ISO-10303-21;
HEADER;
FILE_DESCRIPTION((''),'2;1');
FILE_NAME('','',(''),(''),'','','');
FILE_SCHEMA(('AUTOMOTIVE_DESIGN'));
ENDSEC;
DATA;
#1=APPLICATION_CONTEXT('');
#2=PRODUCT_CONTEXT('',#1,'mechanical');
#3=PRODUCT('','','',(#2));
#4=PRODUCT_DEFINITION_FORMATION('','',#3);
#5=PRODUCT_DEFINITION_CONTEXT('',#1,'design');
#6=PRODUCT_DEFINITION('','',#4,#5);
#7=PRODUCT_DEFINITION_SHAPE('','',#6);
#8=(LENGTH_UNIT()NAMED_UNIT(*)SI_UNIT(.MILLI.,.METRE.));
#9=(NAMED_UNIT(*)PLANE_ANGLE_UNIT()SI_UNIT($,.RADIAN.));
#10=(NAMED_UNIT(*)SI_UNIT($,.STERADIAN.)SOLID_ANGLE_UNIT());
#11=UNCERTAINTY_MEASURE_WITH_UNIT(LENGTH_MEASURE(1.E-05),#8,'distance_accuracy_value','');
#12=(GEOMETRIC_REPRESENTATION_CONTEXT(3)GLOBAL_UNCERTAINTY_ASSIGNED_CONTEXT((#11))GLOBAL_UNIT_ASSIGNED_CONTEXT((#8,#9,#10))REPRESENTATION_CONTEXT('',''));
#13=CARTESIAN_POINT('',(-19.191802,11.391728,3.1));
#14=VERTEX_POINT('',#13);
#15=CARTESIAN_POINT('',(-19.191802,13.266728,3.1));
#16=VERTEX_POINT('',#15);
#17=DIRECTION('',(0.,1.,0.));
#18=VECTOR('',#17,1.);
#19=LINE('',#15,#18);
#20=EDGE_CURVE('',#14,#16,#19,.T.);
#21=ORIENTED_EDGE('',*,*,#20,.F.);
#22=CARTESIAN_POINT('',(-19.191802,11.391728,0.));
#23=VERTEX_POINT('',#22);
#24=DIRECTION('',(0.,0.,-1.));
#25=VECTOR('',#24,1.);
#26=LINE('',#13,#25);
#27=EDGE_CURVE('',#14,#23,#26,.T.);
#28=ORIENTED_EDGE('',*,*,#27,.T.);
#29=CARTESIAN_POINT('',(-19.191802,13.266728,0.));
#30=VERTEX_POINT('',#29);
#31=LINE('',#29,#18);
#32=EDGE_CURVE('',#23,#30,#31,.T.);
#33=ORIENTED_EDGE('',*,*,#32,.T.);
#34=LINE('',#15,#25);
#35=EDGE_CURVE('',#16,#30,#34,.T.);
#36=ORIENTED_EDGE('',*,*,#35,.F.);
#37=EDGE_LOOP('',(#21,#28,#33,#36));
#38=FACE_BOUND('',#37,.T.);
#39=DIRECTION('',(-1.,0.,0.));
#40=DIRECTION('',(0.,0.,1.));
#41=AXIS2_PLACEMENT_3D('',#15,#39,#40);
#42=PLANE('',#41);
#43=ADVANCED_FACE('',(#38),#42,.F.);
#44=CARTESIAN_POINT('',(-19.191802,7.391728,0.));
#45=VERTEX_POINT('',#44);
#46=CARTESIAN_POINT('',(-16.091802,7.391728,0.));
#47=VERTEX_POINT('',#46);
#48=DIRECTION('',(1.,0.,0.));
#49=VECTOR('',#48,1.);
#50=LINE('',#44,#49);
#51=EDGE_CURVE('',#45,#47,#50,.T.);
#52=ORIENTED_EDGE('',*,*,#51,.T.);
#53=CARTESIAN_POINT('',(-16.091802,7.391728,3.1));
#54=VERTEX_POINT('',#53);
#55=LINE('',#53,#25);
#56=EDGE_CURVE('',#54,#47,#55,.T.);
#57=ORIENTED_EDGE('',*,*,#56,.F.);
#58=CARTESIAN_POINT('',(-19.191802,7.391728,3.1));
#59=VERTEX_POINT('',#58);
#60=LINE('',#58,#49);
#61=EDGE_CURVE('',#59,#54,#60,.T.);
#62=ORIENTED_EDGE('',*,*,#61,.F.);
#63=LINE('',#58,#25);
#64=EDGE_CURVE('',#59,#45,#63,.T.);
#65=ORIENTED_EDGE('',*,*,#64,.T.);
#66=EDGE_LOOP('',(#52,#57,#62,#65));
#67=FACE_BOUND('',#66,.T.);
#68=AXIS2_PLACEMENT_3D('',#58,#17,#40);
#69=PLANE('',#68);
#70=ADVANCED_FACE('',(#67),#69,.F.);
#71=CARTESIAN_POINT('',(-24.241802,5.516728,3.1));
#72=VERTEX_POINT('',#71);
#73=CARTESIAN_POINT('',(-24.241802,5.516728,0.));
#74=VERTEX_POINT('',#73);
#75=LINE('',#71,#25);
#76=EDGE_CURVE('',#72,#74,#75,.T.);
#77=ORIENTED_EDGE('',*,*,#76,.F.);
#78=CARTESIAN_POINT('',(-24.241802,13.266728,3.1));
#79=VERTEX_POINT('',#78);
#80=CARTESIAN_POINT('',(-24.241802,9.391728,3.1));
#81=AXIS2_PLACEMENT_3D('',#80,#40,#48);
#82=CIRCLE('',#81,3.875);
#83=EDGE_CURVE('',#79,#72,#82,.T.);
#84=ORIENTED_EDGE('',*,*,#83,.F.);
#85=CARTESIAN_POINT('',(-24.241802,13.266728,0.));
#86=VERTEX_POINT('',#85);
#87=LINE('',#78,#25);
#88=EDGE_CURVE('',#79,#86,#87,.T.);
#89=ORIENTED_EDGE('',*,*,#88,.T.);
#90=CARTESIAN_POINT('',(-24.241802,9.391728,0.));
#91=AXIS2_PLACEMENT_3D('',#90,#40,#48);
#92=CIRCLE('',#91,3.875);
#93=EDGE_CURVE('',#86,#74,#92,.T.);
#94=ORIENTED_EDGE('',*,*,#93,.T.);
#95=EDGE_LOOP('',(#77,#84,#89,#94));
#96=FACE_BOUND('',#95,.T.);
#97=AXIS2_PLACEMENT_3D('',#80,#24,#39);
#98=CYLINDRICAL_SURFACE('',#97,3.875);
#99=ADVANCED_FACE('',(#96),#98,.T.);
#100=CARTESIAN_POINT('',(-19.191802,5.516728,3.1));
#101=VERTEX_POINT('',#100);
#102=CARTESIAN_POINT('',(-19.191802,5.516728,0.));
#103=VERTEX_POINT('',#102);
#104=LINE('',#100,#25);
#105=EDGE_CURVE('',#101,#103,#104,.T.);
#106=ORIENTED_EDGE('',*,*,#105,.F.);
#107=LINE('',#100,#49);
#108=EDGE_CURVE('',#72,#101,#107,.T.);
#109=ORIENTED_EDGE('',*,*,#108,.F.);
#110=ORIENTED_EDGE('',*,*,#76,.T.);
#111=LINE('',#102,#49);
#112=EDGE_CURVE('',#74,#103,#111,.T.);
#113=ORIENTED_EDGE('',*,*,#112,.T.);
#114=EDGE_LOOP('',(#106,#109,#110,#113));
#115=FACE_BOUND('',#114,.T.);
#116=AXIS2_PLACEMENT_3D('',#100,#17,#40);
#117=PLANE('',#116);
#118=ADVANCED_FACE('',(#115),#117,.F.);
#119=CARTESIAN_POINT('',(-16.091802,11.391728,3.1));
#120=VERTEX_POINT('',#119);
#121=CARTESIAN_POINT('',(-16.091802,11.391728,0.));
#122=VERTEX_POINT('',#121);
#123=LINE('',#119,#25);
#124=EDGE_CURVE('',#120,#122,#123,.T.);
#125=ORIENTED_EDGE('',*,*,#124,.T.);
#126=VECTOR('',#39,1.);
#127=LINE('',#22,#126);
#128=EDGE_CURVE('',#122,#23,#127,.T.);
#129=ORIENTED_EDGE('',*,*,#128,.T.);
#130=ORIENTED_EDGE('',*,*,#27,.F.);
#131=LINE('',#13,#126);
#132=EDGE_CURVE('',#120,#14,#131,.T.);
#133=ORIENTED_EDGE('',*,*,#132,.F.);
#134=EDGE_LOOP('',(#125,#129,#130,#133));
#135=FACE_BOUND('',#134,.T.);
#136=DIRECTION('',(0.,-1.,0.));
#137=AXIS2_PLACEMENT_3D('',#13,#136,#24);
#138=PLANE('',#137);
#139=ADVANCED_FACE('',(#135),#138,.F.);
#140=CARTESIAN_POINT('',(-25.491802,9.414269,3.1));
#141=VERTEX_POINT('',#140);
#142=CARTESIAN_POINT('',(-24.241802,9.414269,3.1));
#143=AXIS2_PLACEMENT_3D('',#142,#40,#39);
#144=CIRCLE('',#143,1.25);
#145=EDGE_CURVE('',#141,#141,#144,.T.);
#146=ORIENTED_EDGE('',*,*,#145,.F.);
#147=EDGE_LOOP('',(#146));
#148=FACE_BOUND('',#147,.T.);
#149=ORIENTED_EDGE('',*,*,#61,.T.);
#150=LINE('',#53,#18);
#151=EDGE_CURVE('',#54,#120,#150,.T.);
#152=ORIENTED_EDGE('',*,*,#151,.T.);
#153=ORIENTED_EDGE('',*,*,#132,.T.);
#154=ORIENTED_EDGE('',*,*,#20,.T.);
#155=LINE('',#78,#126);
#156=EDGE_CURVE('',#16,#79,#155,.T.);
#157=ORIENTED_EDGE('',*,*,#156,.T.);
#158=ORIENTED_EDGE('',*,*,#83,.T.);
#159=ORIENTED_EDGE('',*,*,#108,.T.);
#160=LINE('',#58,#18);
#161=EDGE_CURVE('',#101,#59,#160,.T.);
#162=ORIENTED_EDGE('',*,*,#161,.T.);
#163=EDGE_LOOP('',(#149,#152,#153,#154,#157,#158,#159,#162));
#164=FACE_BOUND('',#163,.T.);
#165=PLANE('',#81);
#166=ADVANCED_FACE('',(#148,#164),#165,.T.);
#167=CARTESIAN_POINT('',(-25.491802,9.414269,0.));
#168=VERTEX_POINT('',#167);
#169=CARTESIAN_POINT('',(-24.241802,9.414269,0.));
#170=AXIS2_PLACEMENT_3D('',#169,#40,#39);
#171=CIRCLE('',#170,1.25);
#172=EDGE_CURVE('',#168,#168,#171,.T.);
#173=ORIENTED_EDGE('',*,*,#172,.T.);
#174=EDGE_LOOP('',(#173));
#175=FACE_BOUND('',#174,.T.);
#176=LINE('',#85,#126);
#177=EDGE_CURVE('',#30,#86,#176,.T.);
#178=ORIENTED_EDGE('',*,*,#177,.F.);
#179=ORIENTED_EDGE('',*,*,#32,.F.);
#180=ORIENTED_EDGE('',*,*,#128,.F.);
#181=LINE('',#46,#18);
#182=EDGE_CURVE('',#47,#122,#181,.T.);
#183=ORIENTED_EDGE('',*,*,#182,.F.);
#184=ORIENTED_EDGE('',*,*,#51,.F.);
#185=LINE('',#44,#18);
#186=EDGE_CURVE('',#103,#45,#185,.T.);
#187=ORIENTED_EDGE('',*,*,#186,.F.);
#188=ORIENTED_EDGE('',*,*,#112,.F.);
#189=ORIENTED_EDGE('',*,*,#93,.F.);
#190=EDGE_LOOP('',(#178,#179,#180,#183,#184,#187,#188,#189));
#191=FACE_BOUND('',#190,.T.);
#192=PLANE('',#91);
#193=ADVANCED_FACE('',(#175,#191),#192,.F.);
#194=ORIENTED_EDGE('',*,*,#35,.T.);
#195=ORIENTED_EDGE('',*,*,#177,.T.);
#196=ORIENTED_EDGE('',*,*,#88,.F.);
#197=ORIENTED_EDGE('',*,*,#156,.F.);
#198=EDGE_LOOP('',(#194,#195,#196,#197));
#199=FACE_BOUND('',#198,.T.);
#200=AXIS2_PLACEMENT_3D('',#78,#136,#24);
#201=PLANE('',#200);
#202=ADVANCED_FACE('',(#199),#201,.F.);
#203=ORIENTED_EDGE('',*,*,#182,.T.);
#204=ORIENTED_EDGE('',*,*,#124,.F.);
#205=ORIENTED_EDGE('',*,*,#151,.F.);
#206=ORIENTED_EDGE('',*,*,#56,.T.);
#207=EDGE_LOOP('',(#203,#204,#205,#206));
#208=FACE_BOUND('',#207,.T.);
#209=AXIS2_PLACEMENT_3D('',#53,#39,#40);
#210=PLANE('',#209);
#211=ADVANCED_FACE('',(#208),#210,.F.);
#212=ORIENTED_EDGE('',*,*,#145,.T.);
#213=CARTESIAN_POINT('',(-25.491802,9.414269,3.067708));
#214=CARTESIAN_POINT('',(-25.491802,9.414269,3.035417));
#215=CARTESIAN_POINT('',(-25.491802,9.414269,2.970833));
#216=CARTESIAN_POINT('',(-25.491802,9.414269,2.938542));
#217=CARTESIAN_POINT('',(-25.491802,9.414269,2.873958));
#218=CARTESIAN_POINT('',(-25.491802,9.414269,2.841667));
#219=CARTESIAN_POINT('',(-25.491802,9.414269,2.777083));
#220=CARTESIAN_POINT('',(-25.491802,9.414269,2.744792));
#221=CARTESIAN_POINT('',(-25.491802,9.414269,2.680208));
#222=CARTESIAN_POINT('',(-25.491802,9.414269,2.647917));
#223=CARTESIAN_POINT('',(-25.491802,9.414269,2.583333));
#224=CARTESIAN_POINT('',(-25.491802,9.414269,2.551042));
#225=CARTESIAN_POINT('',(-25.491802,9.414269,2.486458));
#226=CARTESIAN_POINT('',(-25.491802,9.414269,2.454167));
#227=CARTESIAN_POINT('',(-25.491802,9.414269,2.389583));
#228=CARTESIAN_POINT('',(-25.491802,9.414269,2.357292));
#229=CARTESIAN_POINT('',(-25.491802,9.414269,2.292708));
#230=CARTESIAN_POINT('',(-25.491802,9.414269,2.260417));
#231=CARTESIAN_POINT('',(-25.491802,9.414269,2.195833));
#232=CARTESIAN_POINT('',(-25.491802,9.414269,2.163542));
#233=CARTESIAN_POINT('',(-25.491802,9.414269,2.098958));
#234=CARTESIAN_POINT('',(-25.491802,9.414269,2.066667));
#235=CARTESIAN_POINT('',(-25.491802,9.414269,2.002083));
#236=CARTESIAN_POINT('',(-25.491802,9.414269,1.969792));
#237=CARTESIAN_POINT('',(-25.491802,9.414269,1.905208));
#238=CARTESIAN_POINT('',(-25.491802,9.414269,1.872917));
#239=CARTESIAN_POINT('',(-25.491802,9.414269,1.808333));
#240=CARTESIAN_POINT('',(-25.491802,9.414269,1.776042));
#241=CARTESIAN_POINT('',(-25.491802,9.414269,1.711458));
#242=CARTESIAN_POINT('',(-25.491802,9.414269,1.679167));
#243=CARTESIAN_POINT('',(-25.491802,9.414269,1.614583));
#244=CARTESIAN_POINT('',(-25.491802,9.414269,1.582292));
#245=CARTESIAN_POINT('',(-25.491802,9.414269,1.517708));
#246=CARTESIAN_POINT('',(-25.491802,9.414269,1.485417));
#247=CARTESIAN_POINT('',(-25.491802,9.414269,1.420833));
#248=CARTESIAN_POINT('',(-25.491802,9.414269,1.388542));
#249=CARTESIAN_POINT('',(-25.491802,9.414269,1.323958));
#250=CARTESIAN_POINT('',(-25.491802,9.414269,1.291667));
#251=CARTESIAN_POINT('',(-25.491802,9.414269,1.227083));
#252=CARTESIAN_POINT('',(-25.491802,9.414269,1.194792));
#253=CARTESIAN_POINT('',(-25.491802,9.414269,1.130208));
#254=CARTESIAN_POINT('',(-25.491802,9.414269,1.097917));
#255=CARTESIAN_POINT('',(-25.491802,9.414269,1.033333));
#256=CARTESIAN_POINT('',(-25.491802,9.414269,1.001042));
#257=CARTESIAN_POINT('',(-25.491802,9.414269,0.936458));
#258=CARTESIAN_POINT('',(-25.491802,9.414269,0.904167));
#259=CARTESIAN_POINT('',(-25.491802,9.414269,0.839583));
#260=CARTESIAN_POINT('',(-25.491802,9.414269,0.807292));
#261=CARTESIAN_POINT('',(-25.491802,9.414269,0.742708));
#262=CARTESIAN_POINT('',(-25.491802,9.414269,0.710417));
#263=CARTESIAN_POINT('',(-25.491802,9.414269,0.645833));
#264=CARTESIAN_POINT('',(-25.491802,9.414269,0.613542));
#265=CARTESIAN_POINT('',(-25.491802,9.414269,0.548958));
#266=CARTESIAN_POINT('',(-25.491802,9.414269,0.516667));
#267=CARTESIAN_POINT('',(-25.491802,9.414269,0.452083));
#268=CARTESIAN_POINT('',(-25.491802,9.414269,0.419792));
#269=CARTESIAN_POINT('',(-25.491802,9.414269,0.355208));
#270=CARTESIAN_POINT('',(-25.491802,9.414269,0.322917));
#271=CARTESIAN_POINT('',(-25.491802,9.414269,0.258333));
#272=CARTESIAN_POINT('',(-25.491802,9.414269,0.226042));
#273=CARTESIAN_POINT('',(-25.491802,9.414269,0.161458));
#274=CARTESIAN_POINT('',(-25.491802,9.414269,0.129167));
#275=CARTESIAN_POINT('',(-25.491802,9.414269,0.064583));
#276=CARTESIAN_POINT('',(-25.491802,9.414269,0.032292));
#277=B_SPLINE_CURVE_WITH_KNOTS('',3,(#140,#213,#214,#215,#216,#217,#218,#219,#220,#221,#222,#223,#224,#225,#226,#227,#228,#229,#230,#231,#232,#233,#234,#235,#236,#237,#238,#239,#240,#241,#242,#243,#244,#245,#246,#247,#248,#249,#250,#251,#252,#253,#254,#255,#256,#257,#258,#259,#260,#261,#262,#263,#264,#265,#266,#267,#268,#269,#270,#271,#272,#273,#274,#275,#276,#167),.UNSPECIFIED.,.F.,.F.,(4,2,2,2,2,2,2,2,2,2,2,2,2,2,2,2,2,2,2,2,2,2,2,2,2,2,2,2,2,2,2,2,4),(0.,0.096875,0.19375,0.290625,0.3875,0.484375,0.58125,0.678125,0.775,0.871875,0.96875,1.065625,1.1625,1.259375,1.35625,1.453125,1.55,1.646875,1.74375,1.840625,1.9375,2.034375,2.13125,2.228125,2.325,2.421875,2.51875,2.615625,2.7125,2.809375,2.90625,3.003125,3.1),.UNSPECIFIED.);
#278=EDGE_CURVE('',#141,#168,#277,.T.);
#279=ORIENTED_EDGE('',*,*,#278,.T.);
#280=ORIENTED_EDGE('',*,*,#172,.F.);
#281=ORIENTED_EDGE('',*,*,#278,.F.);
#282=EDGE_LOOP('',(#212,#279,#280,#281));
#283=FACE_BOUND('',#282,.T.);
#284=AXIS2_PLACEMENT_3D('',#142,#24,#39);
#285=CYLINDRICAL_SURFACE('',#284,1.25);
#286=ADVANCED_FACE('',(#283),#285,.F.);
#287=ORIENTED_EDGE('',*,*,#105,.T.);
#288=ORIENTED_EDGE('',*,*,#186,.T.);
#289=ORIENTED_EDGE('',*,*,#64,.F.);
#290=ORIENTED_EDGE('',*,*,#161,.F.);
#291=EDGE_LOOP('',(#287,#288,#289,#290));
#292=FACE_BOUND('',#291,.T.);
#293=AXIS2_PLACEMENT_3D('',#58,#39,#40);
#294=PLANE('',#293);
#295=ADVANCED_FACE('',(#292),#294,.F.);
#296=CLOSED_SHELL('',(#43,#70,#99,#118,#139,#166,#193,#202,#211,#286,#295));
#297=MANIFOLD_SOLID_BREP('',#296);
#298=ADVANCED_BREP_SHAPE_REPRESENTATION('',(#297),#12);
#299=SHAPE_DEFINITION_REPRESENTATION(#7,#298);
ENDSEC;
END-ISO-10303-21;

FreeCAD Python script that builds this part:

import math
import FreeCAD as App
import Part
import Sketcher
from FreeCAD import Vector
Q = App.Units.Quantity

doc = App.newDocument("Part")
body = doc.addObject("PartDesign::Body", "Body")

sketch1 = doc.addObject("Sketcher::SketchObject", "Sketch")
body.addObject(sketch1)
sketch1.AttachmentSupport = (doc.XY_Plane, [""])
sketch1.MapMode = "FlatFace"
sketch1.addGeometry([
    Part.LineSegment(Vector(-19.191802, 11.391728, 0), Vector(-19.191802, 13.266728, 0)),
    Part.LineSegment(Vector(-19.191802, 13.266728, 0), Vector(-24.241802, 13.266728, 0)),
    Part.ArcOfCircle(Part.Circle(Vector(-24.241802, 9.391728, 0), Vector(0, 0, 1), 3.875), math.radians(90), math.radians(270)),
    Part.LineSegment(Vector(-24.241802, 5.516728, 0), Vector(-19.191802, 5.516728, 0)),
    Part.LineSegment(Vector(-19.191802, 5.516728, 0), Vector(-19.191802, 7.391728, 0)),
    Part.LineSegment(Vector(-19.191802, 7.391728, 0), Vector(-16.091802, 7.391728, 0)),
    Part.LineSegment(Vector(-16.091802, 7.391728, 0), Vector(-16.091802, 11.391728, 0)),
    Part.LineSegment(Vector(-16.091802, 11.391728, 0), Vector(-19.191802, 11.391728, 0)),
    Part.Circle(Vector(-24.241802, 9.414269, 0), Vector(0, 0, 1), 1.25),
], False)
sketch1.addConstraint([
    Sketcher.Constraint("Coincident", 0, 2, 1, 1),
    Sketcher.Constraint("Tangent", 1, 2, 2, 1),
    Sketcher.Constraint("Tangent", 2, 2, 3, 1),
    Sketcher.Constraint("Coincident", 3, 2, 4, 1),
    Sketcher.Constraint("Coincident", 4, 2, 5, 1),
    Sketcher.Constraint("Coincident", 5, 2, 6, 1),
    Sketcher.Constraint("Coincident", 6, 2, 7, 1),
    Sketcher.Constraint("Coincident", 7, 2, 0, 1),
    Sketcher.Constraint("Vertical", 0),
    Sketcher.Constraint("Horizontal", 1),
    Sketcher.Constraint("Horizontal", 3),
    Sketcher.Constraint("Vertical", 4),
    Sketcher.Constraint("Horizontal", 5),
    Sketcher.Constraint("Vertical", 6),
    Sketcher.Constraint("Horizontal", 7),
    Sketcher.Constraint("Vertical", 2, 3, 8, 3),
    Sketcher.Constraint("Vertical", 0, 2, 3, 2),
    Sketcher.Constraint("Equal", 0, 4),
    Sketcher.Constraint("Diameter", 8, Q("2.5 mm")),
    Sketcher.Constraint("DistanceY", 6, 1, 6, 2, Q("4 mm")),
    Sketcher.Constraint("DistanceX", 5, 1, 5, 2, Q("3.1 mm")),
    Sketcher.Constraint("Radius", 2, Q("3.875 mm")),
    Sketcher.Constraint("DistanceX", 1, 2, 1, 1, Q("5.05 mm")),
    Sketcher.Constraint("DistanceY", -1, 1, 2, 3, Q("9.391728 mm")),
    Sketcher.Constraint("DistanceY", -1, 1, 8, 3, Q("9.414269 mm")),
    Sketcher.Constraint("DistanceX", 2, 3, -1, 1, Q("24.241802 mm")),
])
pad1 = doc.addObject("PartDesign::Pad", "Pad")
body.addObject(pad1)
pad1.Profile = sketch1
pad1.Length = 3.1

doc.recompute()
